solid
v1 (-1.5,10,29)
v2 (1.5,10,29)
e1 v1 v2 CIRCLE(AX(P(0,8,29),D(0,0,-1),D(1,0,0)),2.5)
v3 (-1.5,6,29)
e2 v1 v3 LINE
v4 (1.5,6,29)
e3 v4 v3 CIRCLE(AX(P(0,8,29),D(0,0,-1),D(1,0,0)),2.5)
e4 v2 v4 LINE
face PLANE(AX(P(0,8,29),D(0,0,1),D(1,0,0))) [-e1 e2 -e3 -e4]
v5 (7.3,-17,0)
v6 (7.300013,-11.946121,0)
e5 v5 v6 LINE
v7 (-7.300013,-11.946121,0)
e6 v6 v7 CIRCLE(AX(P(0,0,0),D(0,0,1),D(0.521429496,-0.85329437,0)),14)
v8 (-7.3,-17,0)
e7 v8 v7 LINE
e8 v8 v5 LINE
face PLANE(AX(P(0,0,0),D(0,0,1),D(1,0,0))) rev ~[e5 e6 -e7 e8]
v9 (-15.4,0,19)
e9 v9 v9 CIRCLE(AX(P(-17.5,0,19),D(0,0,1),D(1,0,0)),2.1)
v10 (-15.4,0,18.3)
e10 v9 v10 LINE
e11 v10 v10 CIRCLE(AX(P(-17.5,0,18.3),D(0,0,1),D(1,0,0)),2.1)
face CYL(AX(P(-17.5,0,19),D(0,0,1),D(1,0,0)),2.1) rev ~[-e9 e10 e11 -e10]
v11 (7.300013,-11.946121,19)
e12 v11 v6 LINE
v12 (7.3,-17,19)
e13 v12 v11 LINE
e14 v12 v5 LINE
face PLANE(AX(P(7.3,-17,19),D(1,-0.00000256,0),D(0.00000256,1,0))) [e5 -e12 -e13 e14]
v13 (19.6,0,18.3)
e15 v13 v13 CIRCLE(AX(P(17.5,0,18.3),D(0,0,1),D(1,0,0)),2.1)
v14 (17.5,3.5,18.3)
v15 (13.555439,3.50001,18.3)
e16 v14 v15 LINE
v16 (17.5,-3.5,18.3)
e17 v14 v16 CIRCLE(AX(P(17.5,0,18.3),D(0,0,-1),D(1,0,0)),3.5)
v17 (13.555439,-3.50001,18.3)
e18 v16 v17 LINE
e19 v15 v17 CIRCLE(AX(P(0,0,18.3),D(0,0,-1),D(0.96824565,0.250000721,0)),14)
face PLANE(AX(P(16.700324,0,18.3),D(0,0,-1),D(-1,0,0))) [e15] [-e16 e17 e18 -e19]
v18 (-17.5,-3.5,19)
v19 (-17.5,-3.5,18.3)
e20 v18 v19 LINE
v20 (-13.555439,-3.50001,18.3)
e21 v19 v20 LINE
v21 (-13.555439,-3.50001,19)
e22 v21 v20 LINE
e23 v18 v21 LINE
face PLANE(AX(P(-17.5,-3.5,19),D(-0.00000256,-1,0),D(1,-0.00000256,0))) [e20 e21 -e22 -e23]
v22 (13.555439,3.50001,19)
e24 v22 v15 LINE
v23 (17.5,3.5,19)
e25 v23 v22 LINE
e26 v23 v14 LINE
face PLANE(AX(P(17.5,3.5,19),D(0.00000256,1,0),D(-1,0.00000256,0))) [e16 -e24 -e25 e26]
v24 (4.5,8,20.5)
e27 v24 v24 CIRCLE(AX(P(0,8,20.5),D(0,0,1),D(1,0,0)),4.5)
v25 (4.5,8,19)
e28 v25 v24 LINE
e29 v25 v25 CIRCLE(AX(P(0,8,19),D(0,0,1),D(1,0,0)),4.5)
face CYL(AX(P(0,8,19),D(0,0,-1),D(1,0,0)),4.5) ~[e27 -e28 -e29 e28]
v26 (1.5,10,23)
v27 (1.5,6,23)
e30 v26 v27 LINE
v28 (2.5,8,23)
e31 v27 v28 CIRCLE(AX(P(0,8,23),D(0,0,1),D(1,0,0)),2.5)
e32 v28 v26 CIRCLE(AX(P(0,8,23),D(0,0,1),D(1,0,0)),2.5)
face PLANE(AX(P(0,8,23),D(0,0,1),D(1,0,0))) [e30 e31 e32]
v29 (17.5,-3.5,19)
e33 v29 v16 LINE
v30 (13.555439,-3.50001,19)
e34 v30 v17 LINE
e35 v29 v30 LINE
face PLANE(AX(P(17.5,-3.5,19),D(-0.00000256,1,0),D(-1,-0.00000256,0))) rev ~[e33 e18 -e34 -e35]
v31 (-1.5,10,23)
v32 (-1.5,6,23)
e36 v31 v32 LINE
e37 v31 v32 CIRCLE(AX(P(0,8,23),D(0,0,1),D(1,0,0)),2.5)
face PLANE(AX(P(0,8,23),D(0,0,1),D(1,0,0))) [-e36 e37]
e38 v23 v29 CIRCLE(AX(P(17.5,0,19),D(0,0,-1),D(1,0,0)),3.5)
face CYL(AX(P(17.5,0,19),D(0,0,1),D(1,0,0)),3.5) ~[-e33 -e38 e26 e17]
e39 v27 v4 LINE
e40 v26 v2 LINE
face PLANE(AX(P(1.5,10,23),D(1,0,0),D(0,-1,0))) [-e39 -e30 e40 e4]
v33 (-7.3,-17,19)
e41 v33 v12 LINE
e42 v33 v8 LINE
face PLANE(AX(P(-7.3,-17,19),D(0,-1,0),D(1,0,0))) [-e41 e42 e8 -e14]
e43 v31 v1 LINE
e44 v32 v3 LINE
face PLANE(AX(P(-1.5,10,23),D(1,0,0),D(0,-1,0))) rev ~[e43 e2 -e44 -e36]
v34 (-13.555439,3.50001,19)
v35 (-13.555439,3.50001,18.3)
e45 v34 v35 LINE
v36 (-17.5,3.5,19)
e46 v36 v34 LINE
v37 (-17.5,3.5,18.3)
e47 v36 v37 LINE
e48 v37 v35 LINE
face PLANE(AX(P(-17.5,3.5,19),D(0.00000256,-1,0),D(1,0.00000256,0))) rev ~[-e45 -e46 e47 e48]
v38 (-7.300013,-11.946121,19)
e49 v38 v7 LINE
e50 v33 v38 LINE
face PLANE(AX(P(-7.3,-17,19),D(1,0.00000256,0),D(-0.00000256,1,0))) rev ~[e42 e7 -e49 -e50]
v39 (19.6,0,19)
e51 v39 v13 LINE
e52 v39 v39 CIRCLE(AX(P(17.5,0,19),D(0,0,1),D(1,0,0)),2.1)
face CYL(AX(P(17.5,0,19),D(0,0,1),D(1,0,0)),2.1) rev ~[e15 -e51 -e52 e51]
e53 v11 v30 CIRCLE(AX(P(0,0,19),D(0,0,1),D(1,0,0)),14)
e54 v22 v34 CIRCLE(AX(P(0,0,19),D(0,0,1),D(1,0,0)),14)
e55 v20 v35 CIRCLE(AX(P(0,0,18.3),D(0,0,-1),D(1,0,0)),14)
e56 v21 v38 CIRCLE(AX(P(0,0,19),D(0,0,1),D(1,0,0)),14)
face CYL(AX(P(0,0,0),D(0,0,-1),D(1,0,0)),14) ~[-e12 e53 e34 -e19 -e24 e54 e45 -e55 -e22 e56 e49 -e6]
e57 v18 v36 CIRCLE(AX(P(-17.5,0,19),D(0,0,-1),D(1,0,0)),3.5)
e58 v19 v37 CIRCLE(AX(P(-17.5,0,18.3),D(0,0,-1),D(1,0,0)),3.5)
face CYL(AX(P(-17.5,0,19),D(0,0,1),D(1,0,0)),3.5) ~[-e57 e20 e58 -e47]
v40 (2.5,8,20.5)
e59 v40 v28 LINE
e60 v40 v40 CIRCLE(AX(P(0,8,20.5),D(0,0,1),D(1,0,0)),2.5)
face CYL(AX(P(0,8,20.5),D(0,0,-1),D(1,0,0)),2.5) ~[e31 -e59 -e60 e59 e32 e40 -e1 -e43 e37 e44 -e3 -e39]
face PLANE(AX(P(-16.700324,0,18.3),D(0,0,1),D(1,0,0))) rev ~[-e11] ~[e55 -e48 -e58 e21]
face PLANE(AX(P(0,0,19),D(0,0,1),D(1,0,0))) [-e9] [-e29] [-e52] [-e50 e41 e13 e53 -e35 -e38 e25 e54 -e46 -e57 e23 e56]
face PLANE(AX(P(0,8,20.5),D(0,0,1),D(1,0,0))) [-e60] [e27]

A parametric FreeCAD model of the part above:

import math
import FreeCAD as App
import Part
import Sketcher
Q = App.Units.Quantity

doc = App.newDocument("Part")
params = doc.addObject("Spreadsheet::Sheet", "Params")
for row, (alias, value) in enumerate([
    ("sketch1_diameter", "28 mm"),
    ("pad1_length", "19 mm"),
    ("sketch2_radius", "14 mm"),
    ("sketch2_diameter", "4.2 mm"),
    ("sketch2_radius2", "3.5 mm"),
    ("pad2_length", "0.7 mm"),
    ("sketch3_diameter", "9 mm"),
    ("pad3_length", "1.5 mm"),
    ("sketch4_diameter", "5 mm"),
    ("pad4_length", "2.5 mm"),
    ("sketch5_radius", "2.5 mm"),
    ("sketch5_height", "4 mm"),
    ("pad5_length", "6 mm"),
    ("sketch6_radius", "14 mm"),
    ("sketch6_width", "14.6 mm"),
    ("pad6_length", "19 mm"),
], start=1):
    params.set(f"A{row}", alias)
    params.set(f"B{row}", "=" + value)
    params.setAlias(f"B{row}", alias)

body = doc.addObject("PartDesign::Body", "Body")

# Sketch on XY plane
sketch1 = body.newObject("Sketcher::SketchObject", "Sketch")
sketch1.AttachmentSupport = (doc.getObject("XY_Plane"), [""])
sketch1.MapMode = "FlatFace"
sketch1.addGeometry(Part.Circle(App.Vector(0, 0, 0), App.Vector(0, 0, 1), 14), False)
sketch1.addConstraint(Sketcher.Constraint("Coincident", 0, 3, -1, 1))
sketch1.addConstraint(Sketcher.Constraint("Diameter", 0, Q("28 mm")))
sketch1.setExpression("Constraints[1]", "Params.sketch1_diameter")
pad1 = body.newObject("PartDesign::Pad", "Pad")
pad1.Profile = sketch1
pad1.setExpression("Length", "Params.pad1_length")

# Sketch on XY plane
sketch2 = body.newObject("Sketcher::SketchObject", "Sketch001")
sketch2.AttachmentSupport = (doc.getObject("XY_Plane"), [""])
sketch2.MapMode = "FlatFace"
sketch2.AttachmentOffset = App.Placement(App.Vector(0, 0, 19), App.Rotation())
sketch2.addGeometry(Part.ArcOfCircle(Part.Circle(App.Vector(-17.5, 0, 0), App.Vector(0, 0, 1), 3.5), math.radians(90), math.radians(270)), False)
sketch2.addGeometry(Part.LineSegment(App.Vector(-17.5, -3.5, 0), App.Vector(-13.6, -3.5, 0)), False)
sketch2.addGeometry(Part.ArcOfCircle(Part.Circle(App.Vector(0, 0, 0), App.Vector(0, 0, 1), 14), math.radians(166), math.radians(194)), False)
sketch2.addGeometry(Part.LineSegment(App.Vector(-13.6, 3.5, 0), App.Vector(-17.5, 3.5, 0)), False)
sketch2.addGeometry(Part.Circle(App.Vector(-17.5, 0, 0), App.Vector(0, 0, 1), 2.1), False)
sketch2.addGeometry(Part.LineSegment(App.Vector(13.6, -3.5, 0), App.Vector(17.5, -3.5, 0)), False)
sketch2.addGeometry(Part.ArcOfCircle(Part.Circle(App.Vector(17.5, 0, 0), App.Vector(0, 0, 1), 3.5), math.radians(-90), math.radians(90)), False)
sketch2.addGeometry(Part.LineSegment(App.Vector(17.5, 3.5, 0), App.Vector(13.6, 3.5, 0)), False)
sketch2.addGeometry(Part.ArcOfCircle(Part.Circle(App.Vector(0, 0, 0), App.Vector(0, 0, 1), 14), math.radians(-14), math.radians(14)), False)
sketch2.addGeometry(Part.Circle(App.Vector(17.5, 0, 0), App.Vector(0, 0, 1), 2.1), False)
sketch2.addConstraint(Sketcher.Constraint("Tangent", 0, 2, 1, 1))
sketch2.addConstraint(Sketcher.Constraint("Coincident", 1, 2, 2, 2))
sketch2.addConstraint(Sketcher.Constraint("Coincident", 2, 1, 3, 1))
sketch2.addConstraint(Sketcher.Constraint("Tangent", 3, 2, 0, 1))
sketch2.addConstraint(Sketcher.Constraint("Tangent", 5, 2, 6, 1))
sketch2.addConstraint(Sketcher.Constraint("Tangent", 6, 2, 7, 1))
sketch2.addConstraint(Sketcher.Constraint("Coincident", 7, 2, 8, 2))
sketch2.addConstraint(Sketcher.Constraint("Coincident", 8, 1, 5, 1))
sketch2.addConstraint(Sketcher.Constraint("Horizontal", 1))
sketch2.addConstraint(Sketcher.Constraint("Horizontal", 3))
sketch2.addConstraint(Sketcher.Constraint("Horizontal", 5))
sketch2.addConstraint(Sketcher.Constraint("Horizontal", 7))
sketch2.addConstraint(Sketcher.Constraint("Coincident", 2, 3, -1, 1))
sketch2.addConstraint(Sketcher.Constraint("Coincident", 8, 3, -1, 1))
sketch2.addConstraint(Sketcher.Constraint("Coincident", 4, 3, 0, 3))
sketch2.addConstraint(Sketcher.Constraint("Coincident", 9, 3, 6, 3))
sketch2.addConstraint(Sketcher.Constraint("Equal", 0, 6))
sketch2.addConstraint(Sketcher.Constraint("Equal", 2, 8))
sketch2.addConstraint(Sketcher.Constraint("Equal", 4, 9))
sketch2.addConstraint(Sketcher.Constraint("Symmetric", 0, 3, 6, 3, -1, 1))
sketch2.addConstraint(Sketcher.Constraint("PointOnObject", 0, 3, -1))
sketch2.addConstraint(Sketcher.Constraint("Radius", 2, Q("14 mm")))
sketch2.addConstraint(Sketcher.Constraint("Diameter", 4, Q("4.2 mm")))
sketch2.addConstraint(Sketcher.Constraint("Radius", 0, Q("3.5 mm")))
sketch2.addConstraint(Sketcher.Constraint("DistanceX", 0, 3, 6, 3, Q("35 mm")))
sketch2.setExpression("Constraints[21]", "Params.sketch2_radius")
sketch2.setExpression("Constraints[22]", "Params.sketch2_diameter")
sketch2.setExpression("Constraints[23]", "Params.sketch2_radius2")
pad2 = body.newObject("PartDesign::Pad", "Pad001")
pad2.Profile = sketch2
pad2.setExpression("Length", "Params.pad2_length")
pad2.Reversed = True

# Sketch on XY plane
sketch3 = body.newObject("Sketcher::SketchObject", "Sketch002")
sketch3.AttachmentSupport = (doc.getObject("XY_Plane"), [""])
sketch3.MapMode = "FlatFace"
sketch3.AttachmentOffset = App.Placement(App.Vector(0, 0, 19), App.Rotation())
sketch3.addGeometry(Part.Circle(App.Vector(0, 8, 0), App.Vector(0, 0, 1), 4.5), False)
sketch3.addConstraint(Sketcher.Constraint("PointOnObject", 0, 3, -2))
sketch3.addConstraint(Sketcher.Constraint("Diameter", 0, Q("9 mm")))
sketch3.addConstraint(Sketcher.Constraint("DistanceY", -1, 1, 0, 3, Q("8 mm")))
sketch3.setExpression("Constraints[1]", "Params.sketch3_diameter")
pad3 = body.newObject("PartDesign::Pad", "Pad002")
pad3.Profile = sketch3
pad3.setExpression("Length", "Params.pad3_length")

# Sketch on XY plane
sketch4 = body.newObject("Sketcher::SketchObject", "Sketch003")
sketch4.AttachmentSupport = (doc.getObject("XY_Plane"), [""])
sketch4.MapMode = "FlatFace"
sketch4.AttachmentOffset = App.Placement(App.Vector(0, 0, 20.5), App.Rotation())
sketch4.addGeometry(Part.Circle(App.Vector(0, 8, 0), App.Vector(0, 0, 1), 2.5), False)
sketch4.addConstraint(Sketcher.Constraint("PointOnObject", 0, 3, -2))
sketch4.addConstraint(Sketcher.Constraint("Diameter", 0, Q("5 mm")))
sketch4.addConstraint(Sketcher.Constraint("DistanceY", -1, 1, 0, 3, Q("8 mm")))
sketch4.setExpression("Constraints[1]", "Params.sketch4_diameter")
pad4 = body.newObject("PartDesign::Pad", "Pad003")
pad4.Profile = sketch4
pad4.setExpression("Length", "Params.pad4_length")

# Sketch on XY plane
sketch5 = body.newObject("Sketcher::SketchObject", "Sketch004")
sketch5.AttachmentSupport = (doc.getObject("XY_Plane"), [""])
sketch5.MapMode = "FlatFace"
sketch5.AttachmentOffset = App.Placement(App.Vector(0, 0, 23), App.Rotation())
sketch5.addGeometry(Part.ArcOfCircle(Part.Circle(App.Vector(0, 8, 0), App.Vector(0, 0, 1), 2.5), math.radians(53), math.radians(127)), False)
sketch5.addGeometry(Part.LineSegment(App.Vector(-1.5, 10, 0), App.Vector(-1.5, 6, 0)), False)
sketch5.addGeometry(Part.ArcOfCircle(Part.Circle(App.Vector(0, 8, 0), App.Vector(0, 0, 1), 2.5), math.radians(-127), math.radians(-53)), False)
sketch5.addGeometry(Part.LineSegment(App.Vector(1.5, 6, 0), App.Vector(1.5, 10, 0)), False)
sketch5.addConstraint(Sketcher.Constraint("Coincident", 0, 2, 1, 1))
sketch5.addConstraint(Sketcher.Constraint("Coincident", 1, 2, 2, 1))
sketch5.addConstraint(Sketcher.Constraint("Coincident", 2, 2, 3, 1))
sketch5.addConstraint(Sketcher.Constraint("Coincident", 3, 2, 0, 1))
sketch5.addConstraint(Sketcher.Constraint("Vertical", 1))
sketch5.addConstraint(Sketcher.Constraint("Vertical", 3))
sketch5.addConstraint(Sketcher.Constraint("Coincident", 2, 3, 0, 3))
sketch5.addConstraint(Sketcher.Constraint("Equal", 0, 2))
sketch5.addConstraint(Sketcher.Constraint("Symmetric", 1, 2, 2, 2, -2))
sketch5.addConstraint(Sketcher.Constraint("Radius", 0, Q("2.5 mm")))
sketch5.addConstraint(Sketcher.Constraint("DistanceY", 1, 2, 1, 1, Q("4 mm")))
sketch5.addConstraint(Sketcher.Constraint("DistanceY", -1, 1, 0, 3, Q("8 mm")))
sketch5.setExpression("Constraints[9]", "Params.sketch5_radius")
sketch5.setExpression("Constraints[10]", "Params.sketch5_height")
pad5 = body.newObject("PartDesign::Pad", "Pad004")
pad5.Profile = sketch5
pad5.setExpression("Length", "Params.pad5_length")

# Sketch on XY plane
sketch6 = body.newObject("Sketcher::SketchObject", "Sketch005")
sketch6.AttachmentSupport = (doc.getObject("XY_Plane"), [""])
sketch6.MapMode = "FlatFace"
sketch6.AttachmentOffset = App.Placement(App.Vector(0, 0, 19), App.Rotation())
sketch6.addGeometry(Part.LineSegment(App.Vector(-7, -12, 0), App.Vector(-7, -17, 0)), False)
sketch6.addGeometry(Part.LineSegment(App.Vector(-7, -17, 0), App.Vector(7, -17, 0)), False)
sketch6.addGeometry(Part.LineSegment(App.Vector(7, -17, 0), App.Vector(7, -12, 0)), False)
sketch6.addGeometry(Part.ArcOfCircle(Part.Circle(App.Vector(0, 0, 0), App.Vector(0, 0, 1), 14), math.radians(-121), math.radians(-59)), False)
sketch6.addConstraint(Sketcher.Constraint("Coincident", 0, 2, 1, 1))
sketch6.addConstraint(Sketcher.Constraint("Coincident", 1, 2, 2, 1))
sketch6.addConstraint(Sketcher.Constraint("Coincident", 2, 2, 3, 2))
sketch6.addConstraint(Sketcher.Constraint("Coincident", 3, 1, 0, 1))
sketch6.addConstraint(Sketcher.Constraint("Vertical", 0))
sketch6.addConstraint(Sketcher.Constraint("Horizontal", 1))
sketch6.addConstraint(Sketcher.Constraint("Vertical", 2))
sketch6.addConstraint(Sketcher.Constraint("Coincident", 3, 3, -1, 1))
sketch6.addConstraint(Sketcher.Constraint("Horizontal", 2, 2, 3, 1))
sketch6.addConstraint(Sketcher.Constraint("Radius", 3, Q("14 mm")))
sketch6.addConstraint(Sketcher.Constraint("DistanceX", 1, 1, 1, 2, Q("14.6 mm")))
sketch6.addConstraint(Sketcher.Constraint("DistanceY", 0, 2, -1, 1, Q("17 mm")))
sketch6.setExpression("Constraints[9]", "Params.sketch6_radius")
sketch6.setExpression("Constraints[10]", "Params.sketch6_width")
pad6 = body.newObject("PartDesign::Pad", "Pad005")
pad6.Profile = sketch6
pad6.setExpression("Length", "Params.pad6_length")
pad6.Reversed = True

doc.recompute()
